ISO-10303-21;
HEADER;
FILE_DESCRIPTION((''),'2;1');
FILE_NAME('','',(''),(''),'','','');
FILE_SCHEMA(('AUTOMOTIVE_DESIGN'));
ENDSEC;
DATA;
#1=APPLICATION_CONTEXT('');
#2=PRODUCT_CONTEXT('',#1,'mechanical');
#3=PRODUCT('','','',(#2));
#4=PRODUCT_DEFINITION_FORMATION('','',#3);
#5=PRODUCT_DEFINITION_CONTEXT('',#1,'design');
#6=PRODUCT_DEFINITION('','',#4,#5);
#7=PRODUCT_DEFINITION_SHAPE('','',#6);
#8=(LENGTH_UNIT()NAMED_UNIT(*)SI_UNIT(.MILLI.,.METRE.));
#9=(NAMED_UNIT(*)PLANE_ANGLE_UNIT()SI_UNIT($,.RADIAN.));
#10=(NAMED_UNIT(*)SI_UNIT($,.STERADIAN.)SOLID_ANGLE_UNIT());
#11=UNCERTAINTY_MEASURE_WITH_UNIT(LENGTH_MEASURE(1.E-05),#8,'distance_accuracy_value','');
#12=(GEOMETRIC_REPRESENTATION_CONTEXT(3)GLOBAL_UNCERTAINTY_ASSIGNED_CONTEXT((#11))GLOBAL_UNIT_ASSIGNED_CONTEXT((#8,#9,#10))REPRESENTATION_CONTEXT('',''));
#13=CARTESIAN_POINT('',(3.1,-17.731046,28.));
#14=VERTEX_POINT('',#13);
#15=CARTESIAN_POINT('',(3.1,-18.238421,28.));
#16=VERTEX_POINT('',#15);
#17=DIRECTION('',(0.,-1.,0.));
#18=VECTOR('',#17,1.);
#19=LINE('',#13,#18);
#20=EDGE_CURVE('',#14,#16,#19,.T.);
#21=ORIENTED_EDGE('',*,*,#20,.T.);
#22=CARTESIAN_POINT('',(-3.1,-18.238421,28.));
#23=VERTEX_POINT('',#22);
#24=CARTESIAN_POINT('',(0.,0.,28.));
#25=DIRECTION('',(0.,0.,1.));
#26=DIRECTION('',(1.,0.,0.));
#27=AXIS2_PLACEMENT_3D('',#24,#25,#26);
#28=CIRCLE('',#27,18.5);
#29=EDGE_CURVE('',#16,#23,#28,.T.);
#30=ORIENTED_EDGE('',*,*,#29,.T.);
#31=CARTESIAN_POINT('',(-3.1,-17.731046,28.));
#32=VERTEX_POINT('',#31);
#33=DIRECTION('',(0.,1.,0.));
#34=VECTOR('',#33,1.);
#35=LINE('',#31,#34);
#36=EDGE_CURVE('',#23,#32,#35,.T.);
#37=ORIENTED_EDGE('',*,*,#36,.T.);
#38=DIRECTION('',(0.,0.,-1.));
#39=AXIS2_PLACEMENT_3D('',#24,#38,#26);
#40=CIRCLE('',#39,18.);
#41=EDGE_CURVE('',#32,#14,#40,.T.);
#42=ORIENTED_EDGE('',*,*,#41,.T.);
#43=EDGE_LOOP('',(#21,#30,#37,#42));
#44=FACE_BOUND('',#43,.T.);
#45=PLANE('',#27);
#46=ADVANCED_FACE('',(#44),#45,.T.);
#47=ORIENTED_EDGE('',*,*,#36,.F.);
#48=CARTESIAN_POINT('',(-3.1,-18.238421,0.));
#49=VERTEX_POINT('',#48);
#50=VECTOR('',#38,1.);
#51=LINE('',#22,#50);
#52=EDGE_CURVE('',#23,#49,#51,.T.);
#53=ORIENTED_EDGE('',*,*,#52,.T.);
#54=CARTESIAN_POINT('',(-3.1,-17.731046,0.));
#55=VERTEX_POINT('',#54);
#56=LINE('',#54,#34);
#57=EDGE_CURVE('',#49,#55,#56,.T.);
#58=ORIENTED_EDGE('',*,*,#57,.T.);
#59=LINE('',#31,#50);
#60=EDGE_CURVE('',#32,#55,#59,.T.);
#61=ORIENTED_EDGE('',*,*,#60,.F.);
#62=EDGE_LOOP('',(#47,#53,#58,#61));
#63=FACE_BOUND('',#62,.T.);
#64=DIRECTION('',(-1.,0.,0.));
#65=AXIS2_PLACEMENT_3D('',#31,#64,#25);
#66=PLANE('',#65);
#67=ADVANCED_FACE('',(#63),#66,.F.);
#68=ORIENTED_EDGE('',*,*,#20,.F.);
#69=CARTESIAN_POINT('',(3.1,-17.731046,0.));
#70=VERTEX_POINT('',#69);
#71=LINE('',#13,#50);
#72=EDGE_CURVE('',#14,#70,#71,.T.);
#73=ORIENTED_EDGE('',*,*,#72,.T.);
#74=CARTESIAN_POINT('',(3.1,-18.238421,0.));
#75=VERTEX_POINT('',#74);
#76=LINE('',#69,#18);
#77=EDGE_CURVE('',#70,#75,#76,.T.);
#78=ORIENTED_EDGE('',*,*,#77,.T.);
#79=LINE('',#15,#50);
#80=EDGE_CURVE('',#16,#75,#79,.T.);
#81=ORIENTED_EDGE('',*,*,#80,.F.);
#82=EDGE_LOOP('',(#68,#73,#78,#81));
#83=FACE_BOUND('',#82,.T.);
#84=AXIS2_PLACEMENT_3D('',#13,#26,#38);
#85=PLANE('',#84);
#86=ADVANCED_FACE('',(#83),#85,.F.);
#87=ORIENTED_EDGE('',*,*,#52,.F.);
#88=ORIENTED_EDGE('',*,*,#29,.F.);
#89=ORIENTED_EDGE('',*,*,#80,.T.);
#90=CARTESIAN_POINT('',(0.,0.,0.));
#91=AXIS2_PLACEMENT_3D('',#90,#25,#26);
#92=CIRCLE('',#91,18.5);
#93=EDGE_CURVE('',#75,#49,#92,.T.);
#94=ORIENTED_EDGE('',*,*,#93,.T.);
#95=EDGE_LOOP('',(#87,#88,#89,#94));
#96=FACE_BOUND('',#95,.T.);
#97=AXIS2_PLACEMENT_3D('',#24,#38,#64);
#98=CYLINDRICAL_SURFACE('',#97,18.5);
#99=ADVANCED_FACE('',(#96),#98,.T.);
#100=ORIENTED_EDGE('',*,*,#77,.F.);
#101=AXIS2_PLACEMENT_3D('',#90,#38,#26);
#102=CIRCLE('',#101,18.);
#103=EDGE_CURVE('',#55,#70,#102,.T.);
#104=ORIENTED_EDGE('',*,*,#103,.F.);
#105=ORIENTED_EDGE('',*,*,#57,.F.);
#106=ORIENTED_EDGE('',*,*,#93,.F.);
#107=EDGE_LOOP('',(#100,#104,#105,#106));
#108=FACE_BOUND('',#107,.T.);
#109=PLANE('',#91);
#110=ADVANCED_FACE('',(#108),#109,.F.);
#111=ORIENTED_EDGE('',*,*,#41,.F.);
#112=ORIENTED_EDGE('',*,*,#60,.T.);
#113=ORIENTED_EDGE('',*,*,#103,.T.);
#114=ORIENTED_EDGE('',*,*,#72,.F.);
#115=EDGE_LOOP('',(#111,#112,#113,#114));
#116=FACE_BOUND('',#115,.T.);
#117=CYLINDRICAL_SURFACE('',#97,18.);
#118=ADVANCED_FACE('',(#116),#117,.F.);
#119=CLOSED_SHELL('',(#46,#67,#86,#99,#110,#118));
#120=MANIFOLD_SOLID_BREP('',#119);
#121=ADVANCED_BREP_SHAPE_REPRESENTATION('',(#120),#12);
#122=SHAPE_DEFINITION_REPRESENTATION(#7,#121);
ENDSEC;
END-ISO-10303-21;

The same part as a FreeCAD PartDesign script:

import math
import FreeCAD as App
import Part
import Sketcher

V = App.Vector

doc = App.newDocument("Part")
body = doc.addObject("PartDesign::Body", "Body")

# Sketch on XY plane
sketch1 = doc.addObject("Sketcher::SketchObject", "Sketch")
body.addObject(sketch1)
sketch1.AttachmentSupport = (doc.XY_Plane, [""])
sketch1.MapMode = "FlatFace"
sketch1.addGeometry(Part.LineSegment(V(-3.1, -18.2, 0), V(-3.1, -17.7, 0)), False)
sketch1.addGeometry(Part.ArcOfCircle(Part.Circle(V(0, 0, 0), V(0, 0, 1), 18), math.radians(-80), math.radians(260)), False)
sketch1.addGeometry(Part.LineSegment(V(3.1, -17.7, 0), V(3.1, -18.2, 0)), False)
sketch1.addGeometry(Part.ArcOfCircle(Part.Circle(V(0, 0, 0), V(0, 0, 1), 18.5), math.radians(-80), math.radians(260)), False)
sketch1.addConstraint(Sketcher.Constraint("Coincident", 0, 2, 1, 2))
sketch1.addConstraint(Sketcher.Constraint("Coincident", 1, 1, 2, 1))
sketch1.addConstraint(Sketcher.Constraint("Coincident", 2, 2, 3, 1))
sketch1.addConstraint(Sketcher.Constraint("Coincident", 3, 2, 0, 1))
sketch1.addConstraint(Sketcher.Constraint("Vertical", 0))
sketch1.addConstraint(Sketcher.Constraint("Vertical", 2))
sketch1.addConstraint(Sketcher.Constraint("Coincident", 1, 3, -1, 1))
sketch1.addConstraint(Sketcher.Constraint("Coincident", 3, 3, -1, 1))
sketch1.addConstraint(Sketcher.Constraint("Horizontal", 0, 2, 1, 1))
sketch1.addConstraint(Sketcher.Constraint("Radius", 1, 18.0))
sketch1.addConstraint(Sketcher.Constraint("Radius", 3, 18.5))
sketch1.addConstraint(Sketcher.Constraint("DistanceX", 0, 2, -1, 1, 3.1))
pad1 = doc.addObject("PartDesign::Pad", "Pad")
body.addObject(pad1)
pad1.Profile = sketch1
pad1.Length = 28

doc.recompute()
